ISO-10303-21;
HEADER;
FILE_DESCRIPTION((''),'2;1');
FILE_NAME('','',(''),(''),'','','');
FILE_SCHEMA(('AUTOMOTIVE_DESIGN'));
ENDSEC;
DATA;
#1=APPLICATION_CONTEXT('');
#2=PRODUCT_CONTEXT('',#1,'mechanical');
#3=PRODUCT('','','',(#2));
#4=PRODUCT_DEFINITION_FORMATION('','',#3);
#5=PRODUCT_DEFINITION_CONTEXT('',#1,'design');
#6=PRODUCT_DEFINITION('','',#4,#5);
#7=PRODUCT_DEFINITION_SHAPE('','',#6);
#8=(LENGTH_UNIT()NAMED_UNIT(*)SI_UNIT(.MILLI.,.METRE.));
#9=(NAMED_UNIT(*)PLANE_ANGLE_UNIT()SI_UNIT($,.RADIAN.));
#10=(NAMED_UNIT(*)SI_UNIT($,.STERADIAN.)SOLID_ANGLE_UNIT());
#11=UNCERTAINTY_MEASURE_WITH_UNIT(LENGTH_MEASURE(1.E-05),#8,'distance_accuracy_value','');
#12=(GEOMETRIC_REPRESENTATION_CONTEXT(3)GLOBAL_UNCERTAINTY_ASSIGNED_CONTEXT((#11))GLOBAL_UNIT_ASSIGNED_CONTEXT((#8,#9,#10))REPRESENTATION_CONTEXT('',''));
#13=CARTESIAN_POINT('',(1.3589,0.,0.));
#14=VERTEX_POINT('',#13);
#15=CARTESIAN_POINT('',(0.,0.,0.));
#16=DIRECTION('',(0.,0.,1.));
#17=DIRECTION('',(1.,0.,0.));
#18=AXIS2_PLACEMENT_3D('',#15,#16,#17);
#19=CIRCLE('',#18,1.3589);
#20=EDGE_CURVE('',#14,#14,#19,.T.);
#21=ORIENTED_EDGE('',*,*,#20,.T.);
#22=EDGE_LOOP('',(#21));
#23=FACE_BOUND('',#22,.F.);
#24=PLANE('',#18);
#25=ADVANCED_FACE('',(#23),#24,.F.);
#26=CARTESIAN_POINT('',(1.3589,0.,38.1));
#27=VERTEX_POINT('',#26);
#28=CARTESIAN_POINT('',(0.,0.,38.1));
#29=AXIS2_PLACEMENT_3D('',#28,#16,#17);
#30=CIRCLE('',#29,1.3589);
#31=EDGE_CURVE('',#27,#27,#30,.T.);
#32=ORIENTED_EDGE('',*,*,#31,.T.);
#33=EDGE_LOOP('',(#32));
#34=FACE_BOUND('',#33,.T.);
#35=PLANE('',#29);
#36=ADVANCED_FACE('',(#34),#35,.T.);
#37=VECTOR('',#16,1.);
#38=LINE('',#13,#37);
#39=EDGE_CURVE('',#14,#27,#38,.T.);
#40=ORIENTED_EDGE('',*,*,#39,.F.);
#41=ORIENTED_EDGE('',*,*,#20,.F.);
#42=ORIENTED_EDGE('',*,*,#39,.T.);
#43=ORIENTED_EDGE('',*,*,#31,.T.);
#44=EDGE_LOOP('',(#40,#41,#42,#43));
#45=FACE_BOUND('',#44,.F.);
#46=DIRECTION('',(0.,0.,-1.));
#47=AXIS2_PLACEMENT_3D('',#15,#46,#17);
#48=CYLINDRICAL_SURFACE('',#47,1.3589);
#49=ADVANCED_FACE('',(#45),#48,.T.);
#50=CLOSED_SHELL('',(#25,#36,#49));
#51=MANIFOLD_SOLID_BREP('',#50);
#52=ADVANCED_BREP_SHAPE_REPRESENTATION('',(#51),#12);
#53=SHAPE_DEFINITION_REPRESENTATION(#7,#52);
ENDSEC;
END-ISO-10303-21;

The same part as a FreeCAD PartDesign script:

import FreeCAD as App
import Part
import Sketcher
from FreeCAD import Vector
Q = App.Units.Quantity

doc = App.newDocument("Part")
params = doc.addObject("Spreadsheet::Sheet", "Params")
for row, (alias, value) in enumerate([
    ("sketch1_diameter", "0.107 in"),
    ("pad1_length", "1.5 in"),
], start=1):
    params.set(f"A{row}", alias)
    params.set(f"B{row}", "=" + value)
    params.setAlias(f"B{row}", alias)

body = doc.addObject("PartDesign::Body", "Body")

# Sketch on XY plane
sketch1 = body.newObject("Sketcher::SketchObject", "Sketch")
sketch1.AttachmentSupport = (doc.getObject("XY_Plane"), [""])
sketch1.MapMode = "FlatFace"
sketch1.addGeometry(Part.Circle(Vector(0, 0, 0), Vector(0, 0, 1), 1.3589), False)
sketch1.addConstraint(Sketcher.Constraint("Coincident", 0, 3, -1, 1))
sketch1.addConstraint(Sketcher.Constraint("Diameter", 0, Q("0.107 in")))
sketch1.setExpression("Constraints[1]", "Params.sketch1_diameter")
pad1 = body.newObject("PartDesign::Pad", "Pad")
pad1.Profile = sketch1
pad1.setExpression("Length", "Params.pad1_length")

doc.recompute()
